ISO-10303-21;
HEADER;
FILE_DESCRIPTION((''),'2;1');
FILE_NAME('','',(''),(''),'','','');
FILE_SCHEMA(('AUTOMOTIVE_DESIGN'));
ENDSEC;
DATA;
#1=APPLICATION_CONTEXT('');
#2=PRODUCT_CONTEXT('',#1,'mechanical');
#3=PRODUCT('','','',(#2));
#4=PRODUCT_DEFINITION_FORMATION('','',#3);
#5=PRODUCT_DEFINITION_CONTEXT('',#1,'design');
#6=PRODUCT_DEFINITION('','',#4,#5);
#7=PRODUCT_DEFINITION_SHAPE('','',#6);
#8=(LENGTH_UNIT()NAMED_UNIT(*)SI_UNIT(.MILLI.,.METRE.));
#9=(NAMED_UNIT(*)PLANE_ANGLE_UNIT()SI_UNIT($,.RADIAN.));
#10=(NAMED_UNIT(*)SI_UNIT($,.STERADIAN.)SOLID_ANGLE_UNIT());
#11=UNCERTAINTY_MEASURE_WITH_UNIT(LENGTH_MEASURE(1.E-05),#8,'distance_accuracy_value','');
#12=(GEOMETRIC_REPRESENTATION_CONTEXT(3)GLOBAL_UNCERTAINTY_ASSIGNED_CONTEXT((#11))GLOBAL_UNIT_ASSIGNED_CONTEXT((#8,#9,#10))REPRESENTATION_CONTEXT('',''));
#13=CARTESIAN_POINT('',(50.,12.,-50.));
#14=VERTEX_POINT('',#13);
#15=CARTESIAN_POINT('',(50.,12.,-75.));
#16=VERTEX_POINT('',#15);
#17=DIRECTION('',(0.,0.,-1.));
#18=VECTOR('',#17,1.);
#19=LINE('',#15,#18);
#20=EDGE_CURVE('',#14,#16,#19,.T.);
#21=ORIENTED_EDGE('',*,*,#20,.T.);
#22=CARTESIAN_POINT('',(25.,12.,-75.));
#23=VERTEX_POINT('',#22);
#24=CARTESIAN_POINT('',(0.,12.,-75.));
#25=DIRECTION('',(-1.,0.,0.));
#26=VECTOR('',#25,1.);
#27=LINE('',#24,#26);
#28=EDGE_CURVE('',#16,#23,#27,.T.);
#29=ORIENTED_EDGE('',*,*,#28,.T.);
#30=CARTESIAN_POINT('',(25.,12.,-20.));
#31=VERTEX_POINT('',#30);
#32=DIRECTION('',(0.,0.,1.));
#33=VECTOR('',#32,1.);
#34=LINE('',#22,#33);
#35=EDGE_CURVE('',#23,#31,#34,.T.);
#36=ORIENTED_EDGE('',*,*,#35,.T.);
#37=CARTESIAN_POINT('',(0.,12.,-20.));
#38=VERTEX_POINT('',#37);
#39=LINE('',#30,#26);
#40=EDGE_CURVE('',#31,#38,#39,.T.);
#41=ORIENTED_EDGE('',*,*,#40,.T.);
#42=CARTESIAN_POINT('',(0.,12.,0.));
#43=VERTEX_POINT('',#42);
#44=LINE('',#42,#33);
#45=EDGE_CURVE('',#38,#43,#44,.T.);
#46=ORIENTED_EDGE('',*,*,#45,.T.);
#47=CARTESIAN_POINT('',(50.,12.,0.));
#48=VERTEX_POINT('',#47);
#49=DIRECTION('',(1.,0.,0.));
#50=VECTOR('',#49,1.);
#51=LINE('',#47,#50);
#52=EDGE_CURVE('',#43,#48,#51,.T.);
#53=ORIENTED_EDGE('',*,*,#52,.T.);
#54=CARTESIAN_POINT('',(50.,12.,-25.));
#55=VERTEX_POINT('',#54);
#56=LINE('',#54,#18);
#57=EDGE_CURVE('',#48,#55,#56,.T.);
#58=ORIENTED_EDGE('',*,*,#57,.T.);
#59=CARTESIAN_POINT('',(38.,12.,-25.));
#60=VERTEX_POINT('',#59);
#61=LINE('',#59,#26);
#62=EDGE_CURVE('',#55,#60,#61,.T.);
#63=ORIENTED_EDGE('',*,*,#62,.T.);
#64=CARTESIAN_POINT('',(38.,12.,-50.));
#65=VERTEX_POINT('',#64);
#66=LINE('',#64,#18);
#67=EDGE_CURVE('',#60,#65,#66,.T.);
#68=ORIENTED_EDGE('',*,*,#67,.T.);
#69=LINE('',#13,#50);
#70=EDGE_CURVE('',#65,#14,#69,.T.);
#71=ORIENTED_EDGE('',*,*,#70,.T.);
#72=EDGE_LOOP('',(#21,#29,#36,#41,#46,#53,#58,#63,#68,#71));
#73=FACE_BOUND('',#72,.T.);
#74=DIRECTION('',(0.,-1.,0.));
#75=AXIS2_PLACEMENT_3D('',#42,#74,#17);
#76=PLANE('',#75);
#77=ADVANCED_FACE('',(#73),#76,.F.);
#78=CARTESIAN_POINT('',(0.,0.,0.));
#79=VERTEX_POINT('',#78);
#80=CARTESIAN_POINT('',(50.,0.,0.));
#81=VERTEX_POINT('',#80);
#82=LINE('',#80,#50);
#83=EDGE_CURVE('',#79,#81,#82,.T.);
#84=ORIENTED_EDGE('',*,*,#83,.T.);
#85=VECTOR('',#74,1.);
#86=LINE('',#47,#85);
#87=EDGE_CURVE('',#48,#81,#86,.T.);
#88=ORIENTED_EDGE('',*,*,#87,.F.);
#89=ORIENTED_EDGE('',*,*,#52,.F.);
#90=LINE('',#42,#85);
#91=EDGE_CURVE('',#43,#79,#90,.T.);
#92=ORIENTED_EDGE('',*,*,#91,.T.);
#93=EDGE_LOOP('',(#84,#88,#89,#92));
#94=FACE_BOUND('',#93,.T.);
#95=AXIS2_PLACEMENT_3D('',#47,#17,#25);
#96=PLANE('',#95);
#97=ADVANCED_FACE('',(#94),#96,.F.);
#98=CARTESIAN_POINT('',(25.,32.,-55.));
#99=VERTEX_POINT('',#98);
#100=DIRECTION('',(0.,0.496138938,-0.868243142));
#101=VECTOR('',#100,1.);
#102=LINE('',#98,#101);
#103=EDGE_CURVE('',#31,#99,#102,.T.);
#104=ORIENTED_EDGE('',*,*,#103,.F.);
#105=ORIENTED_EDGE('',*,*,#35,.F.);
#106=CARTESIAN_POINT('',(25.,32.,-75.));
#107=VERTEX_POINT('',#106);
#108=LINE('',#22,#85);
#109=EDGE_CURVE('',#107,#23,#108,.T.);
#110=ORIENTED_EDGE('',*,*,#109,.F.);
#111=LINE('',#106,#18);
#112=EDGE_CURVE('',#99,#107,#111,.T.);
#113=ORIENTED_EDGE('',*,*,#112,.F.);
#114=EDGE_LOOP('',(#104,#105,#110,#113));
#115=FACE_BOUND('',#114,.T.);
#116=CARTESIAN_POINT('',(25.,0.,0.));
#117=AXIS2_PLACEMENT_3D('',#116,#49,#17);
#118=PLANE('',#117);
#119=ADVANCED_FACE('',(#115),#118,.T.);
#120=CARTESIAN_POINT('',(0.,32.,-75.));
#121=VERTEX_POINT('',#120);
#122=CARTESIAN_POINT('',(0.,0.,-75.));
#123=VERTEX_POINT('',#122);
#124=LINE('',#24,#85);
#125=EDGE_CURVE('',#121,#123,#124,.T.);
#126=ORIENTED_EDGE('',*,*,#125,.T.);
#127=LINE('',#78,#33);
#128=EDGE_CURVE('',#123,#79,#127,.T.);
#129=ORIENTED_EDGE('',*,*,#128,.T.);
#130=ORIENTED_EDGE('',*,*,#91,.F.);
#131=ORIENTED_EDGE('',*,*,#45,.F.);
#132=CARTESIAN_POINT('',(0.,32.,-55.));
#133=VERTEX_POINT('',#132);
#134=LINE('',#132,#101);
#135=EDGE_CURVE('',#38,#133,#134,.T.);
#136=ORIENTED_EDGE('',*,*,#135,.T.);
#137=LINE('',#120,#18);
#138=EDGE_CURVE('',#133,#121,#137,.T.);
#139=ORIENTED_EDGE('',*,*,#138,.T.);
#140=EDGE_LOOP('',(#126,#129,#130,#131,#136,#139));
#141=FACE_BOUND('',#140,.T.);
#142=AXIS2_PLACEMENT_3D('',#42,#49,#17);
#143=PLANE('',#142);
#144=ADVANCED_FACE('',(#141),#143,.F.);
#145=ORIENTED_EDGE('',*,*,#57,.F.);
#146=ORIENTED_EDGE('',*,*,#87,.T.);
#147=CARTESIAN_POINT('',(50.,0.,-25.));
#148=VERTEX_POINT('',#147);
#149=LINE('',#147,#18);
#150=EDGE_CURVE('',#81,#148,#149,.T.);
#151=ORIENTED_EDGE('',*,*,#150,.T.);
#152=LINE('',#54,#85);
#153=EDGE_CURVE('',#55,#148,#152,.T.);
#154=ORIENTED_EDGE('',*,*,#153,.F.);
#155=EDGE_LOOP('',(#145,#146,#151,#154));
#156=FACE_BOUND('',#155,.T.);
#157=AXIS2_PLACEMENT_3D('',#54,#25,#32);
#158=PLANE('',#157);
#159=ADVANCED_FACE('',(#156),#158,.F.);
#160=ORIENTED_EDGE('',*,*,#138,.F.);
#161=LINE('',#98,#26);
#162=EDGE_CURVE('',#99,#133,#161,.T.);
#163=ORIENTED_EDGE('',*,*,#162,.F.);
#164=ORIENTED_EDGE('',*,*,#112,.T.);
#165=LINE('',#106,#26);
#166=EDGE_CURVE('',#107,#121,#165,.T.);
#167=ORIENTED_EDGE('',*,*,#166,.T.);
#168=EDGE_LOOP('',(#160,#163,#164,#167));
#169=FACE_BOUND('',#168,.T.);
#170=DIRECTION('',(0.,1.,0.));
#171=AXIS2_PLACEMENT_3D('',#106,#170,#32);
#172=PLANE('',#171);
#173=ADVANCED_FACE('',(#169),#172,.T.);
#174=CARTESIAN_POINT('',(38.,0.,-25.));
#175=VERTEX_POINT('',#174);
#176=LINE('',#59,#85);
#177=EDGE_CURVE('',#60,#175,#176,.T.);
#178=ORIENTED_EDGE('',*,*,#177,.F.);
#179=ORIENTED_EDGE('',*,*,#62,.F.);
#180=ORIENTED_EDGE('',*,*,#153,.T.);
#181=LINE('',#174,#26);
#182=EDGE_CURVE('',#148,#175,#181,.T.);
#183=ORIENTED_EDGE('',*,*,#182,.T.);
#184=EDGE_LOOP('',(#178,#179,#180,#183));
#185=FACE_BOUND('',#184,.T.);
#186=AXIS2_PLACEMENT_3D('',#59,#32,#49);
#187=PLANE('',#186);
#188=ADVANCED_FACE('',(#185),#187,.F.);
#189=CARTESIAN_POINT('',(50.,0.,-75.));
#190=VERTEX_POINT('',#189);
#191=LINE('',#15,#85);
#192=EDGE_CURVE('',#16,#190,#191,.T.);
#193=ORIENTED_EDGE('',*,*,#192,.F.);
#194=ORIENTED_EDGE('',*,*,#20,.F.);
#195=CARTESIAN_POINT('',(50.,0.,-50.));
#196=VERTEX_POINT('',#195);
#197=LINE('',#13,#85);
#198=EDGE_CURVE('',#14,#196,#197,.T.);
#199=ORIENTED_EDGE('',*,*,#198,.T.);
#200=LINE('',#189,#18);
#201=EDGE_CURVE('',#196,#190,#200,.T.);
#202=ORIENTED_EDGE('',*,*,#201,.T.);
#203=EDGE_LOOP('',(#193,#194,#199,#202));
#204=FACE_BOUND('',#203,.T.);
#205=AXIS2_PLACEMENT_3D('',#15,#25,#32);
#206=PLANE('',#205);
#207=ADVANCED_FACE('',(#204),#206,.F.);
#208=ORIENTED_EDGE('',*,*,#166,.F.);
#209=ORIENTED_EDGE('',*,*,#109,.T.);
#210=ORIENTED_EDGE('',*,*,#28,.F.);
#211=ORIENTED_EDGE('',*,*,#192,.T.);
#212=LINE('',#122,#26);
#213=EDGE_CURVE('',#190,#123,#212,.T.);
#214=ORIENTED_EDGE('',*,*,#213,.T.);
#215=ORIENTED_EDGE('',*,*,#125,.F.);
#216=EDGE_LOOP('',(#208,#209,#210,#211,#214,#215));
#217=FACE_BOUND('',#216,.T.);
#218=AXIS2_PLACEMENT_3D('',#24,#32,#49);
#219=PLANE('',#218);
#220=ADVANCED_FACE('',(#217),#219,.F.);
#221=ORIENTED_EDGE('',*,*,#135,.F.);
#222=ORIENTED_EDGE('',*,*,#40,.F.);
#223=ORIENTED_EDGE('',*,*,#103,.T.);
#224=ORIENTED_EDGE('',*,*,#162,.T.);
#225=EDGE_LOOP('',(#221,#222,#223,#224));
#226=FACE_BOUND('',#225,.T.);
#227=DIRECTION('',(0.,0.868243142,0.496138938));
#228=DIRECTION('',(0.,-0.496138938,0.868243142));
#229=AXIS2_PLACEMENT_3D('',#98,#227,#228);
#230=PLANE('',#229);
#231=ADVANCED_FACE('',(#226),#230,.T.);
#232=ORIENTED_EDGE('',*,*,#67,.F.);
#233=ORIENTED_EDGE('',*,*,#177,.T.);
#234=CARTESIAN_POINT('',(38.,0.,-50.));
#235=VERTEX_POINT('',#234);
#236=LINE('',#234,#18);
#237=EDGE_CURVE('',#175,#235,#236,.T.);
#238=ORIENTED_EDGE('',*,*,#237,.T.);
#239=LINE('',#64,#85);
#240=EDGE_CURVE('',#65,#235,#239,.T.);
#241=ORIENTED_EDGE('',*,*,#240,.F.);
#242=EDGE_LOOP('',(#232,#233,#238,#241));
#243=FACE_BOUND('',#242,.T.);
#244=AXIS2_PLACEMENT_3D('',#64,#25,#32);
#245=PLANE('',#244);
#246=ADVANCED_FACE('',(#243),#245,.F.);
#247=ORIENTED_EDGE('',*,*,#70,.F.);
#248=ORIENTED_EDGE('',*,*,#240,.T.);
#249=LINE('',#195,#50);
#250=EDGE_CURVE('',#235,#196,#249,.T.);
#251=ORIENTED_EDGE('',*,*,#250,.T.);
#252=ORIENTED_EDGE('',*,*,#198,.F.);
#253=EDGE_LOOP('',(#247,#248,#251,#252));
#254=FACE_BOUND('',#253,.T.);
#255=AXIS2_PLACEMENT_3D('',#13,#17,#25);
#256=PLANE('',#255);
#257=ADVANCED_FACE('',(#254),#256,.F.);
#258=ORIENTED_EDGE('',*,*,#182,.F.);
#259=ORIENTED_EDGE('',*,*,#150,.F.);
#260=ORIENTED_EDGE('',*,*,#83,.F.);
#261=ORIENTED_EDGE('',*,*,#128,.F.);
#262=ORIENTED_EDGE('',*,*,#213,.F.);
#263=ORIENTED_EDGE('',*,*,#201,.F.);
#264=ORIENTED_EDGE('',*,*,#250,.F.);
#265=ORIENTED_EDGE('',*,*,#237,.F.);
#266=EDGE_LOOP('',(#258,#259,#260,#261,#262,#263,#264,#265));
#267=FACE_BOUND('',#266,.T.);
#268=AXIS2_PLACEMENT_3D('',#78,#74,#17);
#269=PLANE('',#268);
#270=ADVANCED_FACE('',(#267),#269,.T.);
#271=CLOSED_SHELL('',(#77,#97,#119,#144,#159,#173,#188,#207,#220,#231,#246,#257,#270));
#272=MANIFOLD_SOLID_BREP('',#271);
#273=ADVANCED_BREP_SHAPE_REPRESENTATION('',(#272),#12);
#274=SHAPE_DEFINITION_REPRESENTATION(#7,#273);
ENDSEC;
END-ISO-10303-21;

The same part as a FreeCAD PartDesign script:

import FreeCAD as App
import Part
import Sketcher
from FreeCAD import Vector


def add_polygon(sketch, points):
    """Adds a closed chain of lines whose ends are joined by coincident constraints."""
    first, n = sketch.GeometryCount, len(points)
    for a, b in zip(points, points[1:] + points[:1]):
        sketch.addGeometry(Part.LineSegment(App.Vector(*a, 0), App.Vector(*b, 0)), False)
    for i in range(n):
        sketch.addConstraint(Sketcher.Constraint("Coincident", first + i, 2, first + (i + 1) % n, 1))

doc = App.newDocument("Part")
params = doc.addObject("Spreadsheet::Sheet", "Params")
for row, (alias, value) in enumerate([
    ("sketch1_width", "50 mm"),
    ("sketch1_width2", "12 mm"),
    ("sketch1_height", "75 mm"),
    ("pad1_length", "12 mm"),
    ("sketch2_width", "20 mm"),
    ("sketch2_height", "55 mm"),
    ("pad2_length", "25 mm"),
], start=1):
    params.set(f"A{row}", alias)
    params.set(f"B{row}", "=" + value)
    params.setAlias(f"B{row}", alias)

body = doc.addObject("PartDesign::Body", "Body")

# Sketch on XZ plane
sketch1 = body.newObject("Sketcher::SketchObject", "Sketch")
sketch1.AttachmentSupport = (doc.getObject("XZ_Plane"), [""])
sketch1.MapMode = "FlatFace"
add_polygon(sketch1, [(0, -75), (0, 0), (50, 0), (50, -25), (38, -25), (38, -50), (50, -50), (50, -75)])  # lines 0-7
sketch1.addConstraint(Sketcher.Constraint("Vertical", 0))
sketch1.addConstraint(Sketcher.Constraint("Horizontal", 1))
sketch1.addConstraint(Sketcher.Constraint("Vertical", 2))
sketch1.addConstraint(Sketcher.Constraint("Horizontal", 3))
sketch1.addConstraint(Sketcher.Constraint("Vertical", 4))
sketch1.addConstraint(Sketcher.Constraint("Horizontal", 5))
sketch1.addConstraint(Sketcher.Constraint("Vertical", 6))
sketch1.addConstraint(Sketcher.Constraint("Horizontal", 7))
sketch1.addConstraint(Sketcher.Constraint("Coincident", 0, 2, -1, 1))
sketch1.addConstraint(Sketcher.Constraint("Vertical", 2, 2, 5, 2))
sketch1.addConstraint(Sketcher.Constraint("Equal", 2, 4))
sketch1.addConstraint(Sketcher.Constraint("Equal", 4, 6))
sketch1.addConstraint(Sketcher.Constraint("DistanceX", 1, 1, 1, 2, 50.0))
sketch1.addConstraint(Sketcher.Constraint("DistanceX", 3, 2, 3, 1, 12.0))
sketch1.addConstraint(Sketcher.Constraint("DistanceY", 0, 1, 0, 2, 75.0))
sketch1.setExpression("Constraints[20]", "Params.sketch1_width")
sketch1.setExpression("Constraints[21]", "Params.sketch1_width2")
sketch1.setExpression("Constraints[22]", "Params.sketch1_height")
pad1 = body.newObject("PartDesign::Pad", "Pad")
pad1.Profile = sketch1
pad1.setExpression("Length", "Params.pad1_length")
pad1.Reversed = True

# Sketch on YZ plane
sketch2 = body.newObject("Sketcher::SketchObject", "Sketch001")
sketch2.AttachmentSupport = (doc.getObject("YZ_Plane"), [""])
sketch2.MapMode = "FlatFace"
add_polygon(sketch2, [(12, -20), (32, -55), (32, -75), (12, -75)])  # lines 0-3
sketch2.addConstraint(Sketcher.Constraint("Vertical", 1))
sketch2.addConstraint(Sketcher.Constraint("Horizontal", 2))
sketch2.addConstraint(Sketcher.Constraint("Vertical", 3))
sketch2.addConstraint(Sketcher.Constraint("Equal", 2, 1))
sketch2.addConstraint(Sketcher.Constraint("DistanceX", 2, 2, 2, 1, 20.0))
sketch2.addConstraint(Sketcher.Constraint("DistanceY", 3, 1, 3, 2, 55.0))
sketch2.addConstraint(Sketcher.Constraint("DistanceX", -1, 1, 0, 2, 32.0))
sketch2.addConstraint(Sketcher.Constraint("DistanceY", 0, 2, -1, 1, 55.0))
sketch2.setExpression("Constraints[8]", "Params.sketch2_width")
sketch2.setExpression("Constraints[9]", "Params.sketch2_height")
pad2 = body.newObject("PartDesign::Pad", "Pad001")
pad2.Profile = sketch2
pad2.setExpression("Length", "Params.pad2_length")

doc.recompute()
